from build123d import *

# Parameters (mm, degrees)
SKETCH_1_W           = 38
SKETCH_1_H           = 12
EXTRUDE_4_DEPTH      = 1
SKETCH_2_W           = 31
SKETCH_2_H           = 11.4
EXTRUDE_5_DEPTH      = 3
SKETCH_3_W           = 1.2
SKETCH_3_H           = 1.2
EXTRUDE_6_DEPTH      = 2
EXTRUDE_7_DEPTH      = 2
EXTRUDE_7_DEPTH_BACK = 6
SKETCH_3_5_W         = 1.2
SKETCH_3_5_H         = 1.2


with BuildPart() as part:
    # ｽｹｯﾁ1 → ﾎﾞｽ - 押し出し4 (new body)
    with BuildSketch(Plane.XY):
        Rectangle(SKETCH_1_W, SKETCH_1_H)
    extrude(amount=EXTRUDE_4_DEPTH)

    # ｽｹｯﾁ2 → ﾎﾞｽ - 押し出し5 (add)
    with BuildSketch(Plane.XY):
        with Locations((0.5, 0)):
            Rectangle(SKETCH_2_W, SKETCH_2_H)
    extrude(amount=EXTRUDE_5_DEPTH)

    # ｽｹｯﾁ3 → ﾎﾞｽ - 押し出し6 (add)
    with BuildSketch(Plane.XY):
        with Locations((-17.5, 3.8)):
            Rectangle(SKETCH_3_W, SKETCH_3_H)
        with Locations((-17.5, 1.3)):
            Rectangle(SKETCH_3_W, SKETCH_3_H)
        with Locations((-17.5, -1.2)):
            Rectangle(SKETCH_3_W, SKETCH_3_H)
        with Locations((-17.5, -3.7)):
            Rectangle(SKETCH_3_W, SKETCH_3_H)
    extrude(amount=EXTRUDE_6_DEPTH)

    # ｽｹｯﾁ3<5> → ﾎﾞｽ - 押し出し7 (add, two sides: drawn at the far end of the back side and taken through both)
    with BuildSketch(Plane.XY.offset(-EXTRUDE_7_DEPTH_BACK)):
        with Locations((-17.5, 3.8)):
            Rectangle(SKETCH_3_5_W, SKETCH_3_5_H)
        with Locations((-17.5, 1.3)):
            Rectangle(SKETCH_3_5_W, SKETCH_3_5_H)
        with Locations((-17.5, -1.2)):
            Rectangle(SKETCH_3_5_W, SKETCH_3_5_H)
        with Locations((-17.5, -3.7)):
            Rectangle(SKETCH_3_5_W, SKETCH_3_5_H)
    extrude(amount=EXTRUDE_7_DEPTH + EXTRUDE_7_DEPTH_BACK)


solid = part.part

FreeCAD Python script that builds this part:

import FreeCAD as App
import Part
import Sketcher

doc = App.newDocument("Part")
params = doc.addObject("Spreadsheet::Sheet", "Params")
for row, (alias, value) in enumerate([
    ("sketch1_width", "38 mm"),
    ("sketch1_height", "12 mm"),
    ("pad1_length", "1 mm"),
    ("sketch2_width", "31 mm"),
    ("sketch2_height", "11.4 mm"),
    ("pad2_length", "3 mm"),
    ("sketch3_width", "1.2 mm"),
    ("pad3_length", "2 mm"),
    ("sketch4_width", "1.2 mm"),
    ("pad4_length", "2 mm"),
    ("pad4_length2", "6 mm"),
], start=1):
    params.set(f"A{row}", alias)
    params.set(f"B{row}", "=" + value)
    params.setAlias(f"B{row}", alias)

body = doc.addObject("PartDesign::Body", "Body")

# Sketch on XY plane
sketch1 = body.newObject("Sketcher::SketchObject", "Sketch")
sketch1.AttachmentSupport = (doc.getObject("XY_Plane"), [""])
sketch1.MapMode = "FlatFace"
sketch1.addGeometry(Part.LineSegment(App.Vector(-19, 6, 0), App.Vector(-19, -6, 0)), False)
sketch1.addGeometry(Part.LineSegment(App.Vector(-19, -6, 0), App.Vector(19, -6, 0)), False)
sketch1.addGeometry(Part.LineSegment(App.Vector(19, -6, 0), App.Vector(19, 6, 0)), False)
sketch1.addGeometry(Part.LineSegment(App.Vector(19, 6, 0), App.Vector(-19, 6, 0)), False)
sketch1.addConstraint(Sketcher.Constraint("Coincident", 0, 2, 1, 1))
sketch1.addConstraint(Sketcher.Constraint("Coincident", 1, 2, 2, 1))
sketch1.addConstraint(Sketcher.Constraint("Coincident", 2, 2, 3, 1))
sketch1.addConstraint(Sketcher.Constraint("Coincident", 3, 2, 0, 1))
sketch1.addConstraint(Sketcher.Constraint("Vertical", 0))
sketch1.addConstraint(Sketcher.Constraint("Horizontal", 1))
sketch1.addConstraint(Sketcher.Constraint("Vertical", 2))
sketch1.addConstraint(Sketcher.Constraint("Horizontal", 3))
sketch1.addConstraint(Sketcher.Constraint("Symmetric", 0, 2, 2, 2, -1, 1))
sketch1.addConstraint(Sketcher.Constraint("DistanceX", 1, 1, 1, 2, 38.0))
sketch1.addConstraint(Sketcher.Constraint("DistanceY", 0, 2, 0, 1, 12.0))
sketch1.setExpression("Constraints[9]", "Params.sketch1_width")
sketch1.setExpression("Constraints[10]", "Params.sketch1_height")
pad1 = body.newObject("PartDesign::Pad", "Pad")
pad1.Profile = sketch1
pad1.setExpression("Length", "Params.pad1_length")

# Sketch on XY plane
sketch2 = body.newObject("Sketcher::SketchObject", "Sketch001")
sketch2.AttachmentSupport = (doc.getObject("XY_Plane"), [""])
sketch2.MapMode = "FlatFace"
sketch2.addGeometry(Part.LineSegment(App.Vector(-15, 6, 0), App.Vector(-15, -6, 0)), False)
sketch2.addGeometry(Part.LineSegment(App.Vector(-15, -6, 0), App.Vector(16, -6, 0)), False)
sketch2.addGeometry(Part.LineSegment(App.Vector(16, -6, 0), App.Vector(16, 6, 0)), False)
sketch2.addGeometry(Part.LineSegment(App.Vector(16, 6, 0), App.Vector(-15, 6, 0)), False)
sketch2.addConstraint(Sketcher.Constraint("Coincident", 0, 2, 1, 1))
sketch2.addConstraint(Sketcher.Constraint("Coincident", 1, 2, 2, 1))
sketch2.addConstraint(Sketcher.Constraint("Coincident", 2, 2, 3, 1))
sketch2.addConstraint(Sketcher.Constraint("Coincident", 3, 2, 0, 1))
sketch2.addConstraint(Sketcher.Constraint("Vertical", 0))
sketch2.addConstraint(Sketcher.Constraint("Horizontal", 1))
sketch2.addConstraint(Sketcher.Constraint("Vertical", 2))
sketch2.addConstraint(Sketcher.Constraint("Horizontal", 3))
sketch2.addConstraint(Sketcher.Constraint("DistanceX", 1, 1, 1, 2, 31.0))
sketch2.addConstraint(Sketcher.Constraint("DistanceY", 0, 2, 0, 1, 11.4))
sketch2.addConstraint(Sketcher.Constraint("DistanceX", 0, 2, -1, 1, 15.0))
sketch2.addConstraint(Sketcher.Constraint("DistanceY", 0, 2, -1, 1, 5.7))
sketch2.setExpression("Constraints[8]", "Params.sketch2_width")
sketch2.setExpression("Constraints[9]", "Params.sketch2_height")
pad2 = body.newObject("PartDesign::Pad", "Pad001")
pad2.Profile = sketch2
pad2.setExpression("Length", "Params.pad2_length")

# Sketch on XY plane
sketch3 = body.newObject("Sketcher::SketchObject", "Sketch002")
sketch3.AttachmentSupport = (doc.getObject("XY_Plane"), [""])
sketch3.MapMode = "FlatFace"
sketch3.addGeometry(Part.LineSegment(App.Vector(-18.1, 4.4, 0), App.Vector(-18.1, 3.2, 0)), False)
sketch3.addGeometry(Part.LineSegment(App.Vector(-18.1, 3.2, 0), App.Vector(-16.9, 3.2, 0)), False)
sketch3.addGeometry(Part.LineSegment(App.Vector(-16.9, 3.2, 0), App.Vector(-16.9, 4.4, 0)), False)
sketch3.addGeometry(Part.LineSegment(App.Vector(-16.9, 4.4, 0), App.Vector(-18.1, 4.4, 0)), False)
sketch3.addGeometry(Part.LineSegment(App.Vector(-18.1, 1.9, 0), App.Vector(-18.1, 0.7, 0)), False)
sketch3.addGeometry(Part.LineSegment(App.Vector(-18.1, 0.7, 0), App.Vector(-16.9, 0.7, 0)), False)
sketch3.addGeometry(Part.LineSegment(App.Vector(-16.9, 0.7, 0), App.Vector(-16.9, 1.9, 0)), False)
sketch3.addGeometry(Part.LineSegment(App.Vector(-16.9, 1.9, 0), App.Vector(-18.1, 1.9, 0)), False)
sketch3.addGeometry(Part.LineSegment(App.Vector(-18.1, -0.6, 0), App.Vector(-18.1, -1.8, 0)), False)
sketch3.addGeometry(Part.LineSegment(App.Vector(-18.1, -1.8, 0), App.Vector(-16.9, -1.8, 0)), False)
sketch3.addGeometry(Part.LineSegment(App.Vector(-16.9, -1.8, 0), App.Vector(-16.9, -0.6, 0)), False)
sketch3.addGeometry(Part.LineSegment(App.Vector(-16.9, -0.6, 0), App.Vector(-18.1, -0.6, 0)), False)
sketch3.addGeometry(Part.LineSegment(App.Vector(-18.1, -3.1, 0), App.Vector(-18.1, -4.3, 0)), False)
sketch3.addGeometry(Part.LineSegment(App.Vector(-18.1, -4.3, 0), App.Vector(-16.9, -4.3, 0)), False)
sketch3.addGeometry(Part.LineSegment(App.Vector(-16.9, -4.3, 0), App.Vector(-16.9, -3.1, 0)), False)
sketch3.addGeometry(Part.LineSegment(App.Vector(-16.9, -3.1, 0), App.Vector(-18.1, -3.1, 0)), False)
sketch3.addConstraint(Sketcher.Constraint("Coincident", 0, 2, 1, 1))
sketch3.addConstraint(Sketcher.Constraint("Coincident", 1, 2, 2, 1))
sketch3.addConstraint(Sketcher.Constraint("Coincident", 2, 2, 3, 1))
sketch3.addConstraint(Sketcher.Constraint("Coincident", 3, 2, 0, 1))
sketch3.addConstraint(Sketcher.Constraint("Coincident", 4, 2, 5, 1))
sketch3.addConstraint(Sketcher.Constraint("Coincident", 5, 2, 6, 1))
sketch3.addConstraint(Sketcher.Constraint("Coincident", 6, 2, 7, 1))
sketch3.addConstraint(Sketcher.Constraint("Coincident", 7, 2, 4, 1))
sketch3.addConstraint(Sketcher.Constraint("Coincident", 8, 2, 9, 1))
sketch3.addConstraint(Sketcher.Constraint("Coincident", 9, 2, 10, 1))
sketch3.addConstraint(Sketcher.Constraint("Coincident", 10, 2, 11, 1))
sketch3.addConstraint(Sketcher.Constraint("Coincident", 11, 2, 8, 1))
sketch3.addConstraint(Sketcher.Constraint("Coincident", 12, 2, 13, 1))
sketch3.addConstraint(Sketcher.Constraint("Coincident", 13, 2, 14, 1))
sketch3.addConstraint(Sketcher.Constraint("Coincident", 14, 2, 15, 1))
sketch3.addConstraint(Sketcher.Constraint("Coincident", 15, 2, 12, 1))
sketch3.addConstraint(Sketcher.Constraint("Vertical", 0))
sketch3.addConstraint(Sketcher.Constraint("Horizontal", 1))
sketch3.addConstraint(Sketcher.Constraint("Vertical", 2))
sketch3.addConstraint(Sketcher.Constraint("Horizontal", 3))
sketch3.addConstraint(Sketcher.Constraint("Vertical", 4))
sketch3.addConstraint(Sketcher.Constraint("Horizontal", 5))
sketch3.addConstraint(Sketcher.Constraint("Vertical", 6))
sketch3.addConstraint(Sketcher.Constraint("Horizontal", 7))
sketch3.addConstraint(Sketcher.Constraint("Vertical", 8))
sketch3.addConstraint(Sketcher.Constraint("Horizontal", 9))
sketch3.addConstraint(Sketcher.Constraint("Vertical", 10))
sketch3.addConstraint(Sketcher.Constraint("Horizontal", 11))
sketch3.addConstraint(Sketcher.Constraint("Vertical", 12))
sketch3.addConstraint(Sketcher.Constraint("Horizontal", 13))
sketch3.addConstraint(Sketcher.Constraint("Vertical", 14))
sketch3.addConstraint(Sketcher.Constraint("Horizontal", 15))
sketch3.addConstraint(Sketcher.Constraint("Vertical", 3, 2, 4, 2))
sketch3.addConstraint(Sketcher.Constraint("Vertical", 2, 2, 5, 2))
sketch3.addConstraint(Sketcher.Constraint("Vertical", 7, 2, 8, 2))
sketch3.addConstraint(Sketcher.Constraint("Vertical", 6, 2, 9, 2))
sketch3.addConstraint(Sketcher.Constraint("Vertical", 11, 2, 12, 2))
sketch3.addConstraint(Sketcher.Constraint("Vertical", 10, 2, 13, 2))
sketch3.addConstraint(Sketcher.Constraint("Equal", 15, 0))
sketch3.addConstraint(Sketcher.Constraint("Equal", 2, 4))
sketch3.addConstraint(Sketcher.Constraint("Equal", 6, 8))
sketch3.addConstraint(Sketcher.Constraint("Equal", 10, 12))
sketch3.addConstraint(Sketcher.Constraint("DistanceX", 1, 1, 1, 2, 1.2))
sketch3.addConstraint(Sketcher.Constraint("DistanceY", 8, 2, 0, 2, 5.0))
sketch3.addConstraint(Sketcher.Constraint("DistanceY", 12, 2, 4, 2, 5.0))
sketch3.addConstraint(Sketcher.Constraint("DistanceX", 0, 2, -1, 1, 18.1))
sketch3.addConstraint(Sketcher.Constraint("DistanceY", -1, 1, 0, 2, 3.2))
sketch3.addConstraint(Sketcher.Constraint("DistanceY", -1, 1, 4, 2, 0.7))
sketch3.setExpression("Constraints[42]", "Params.sketch3_width")
pad3 = body.newObject("PartDesign::Pad", "Pad002")
pad3.Profile = sketch3
pad3.setExpression("Length", "Params.pad3_length")

# Sketch on XY plane
sketch4 = body.newObject("Sketcher::SketchObject", "Sketch003")
sketch4.AttachmentSupport = (doc.getObject("XY_Plane"), [""])
sketch4.MapMode = "FlatFace"
sketch4.addGeometry(Part.LineSegment(App.Vector(-18.1, 4.4, 0), App.Vector(-18.1, 3.2, 0)), False)
sketch4.addGeometry(Part.LineSegment(App.Vector(-18.1, 3.2, 0), App.Vector(-16.9, 3.2, 0)), False)
sketch4.addGeometry(Part.LineSegment(App.Vector(-16.9, 3.2, 0), App.Vector(-16.9, 4.4, 0)), False)
sketch4.addGeometry(Part.LineSegment(App.Vector(-16.9, 4.4, 0), App.Vector(-18.1, 4.4, 0)), False)
sketch4.addGeometry(Part.LineSegment(App.Vector(-18.1, 1.9, 0), App.Vector(-18.1, 0.7, 0)), False)
sketch4.addGeometry(Part.LineSegment(App.Vector(-18.1, 0.7, 0), App.Vector(-16.9, 0.7, 0)), False)
sketch4.addGeometry(Part.LineSegment(App.Vector(-16.9, 0.7, 0), App.Vector(-16.9, 1.9, 0)), False)
sketch4.addGeometry(Part.LineSegment(App.Vector(-16.9, 1.9, 0), App.Vector(-18.1, 1.9, 0)), False)
sketch4.addGeometry(Part.LineSegment(App.Vector(-18.1, -0.6, 0), App.Vector(-18.1, -1.8, 0)), False)
sketch4.addGeometry(Part.LineSegment(App.Vector(-18.1, -1.8, 0), App.Vector(-16.9, -1.8, 0)), False)
sketch4.addGeometry(Part.LineSegment(App.Vector(-16.9, -1.8, 0), App.Vector(-16.9, -0.6, 0)), False)
sketch4.addGeometry(Part.LineSegment(App.Vector(-16.9, -0.6, 0), App.Vector(-18.1, -0.6, 0)), False)
sketch4.addGeometry(Part.LineSegment(App.Vector(-18.1, -3.1, 0), App.Vector(-18.1, -4.3, 0)), False)
sketch4.addGeometry(Part.LineSegment(App.Vector(-18.1, -4.3, 0), App.Vector(-16.9, -4.3, 0)), False)
sketch4.addGeometry(Part.LineSegment(App.Vector(-16.9, -4.3, 0), App.Vector(-16.9, -3.1, 0)), False)
sketch4.addGeometry(Part.LineSegment(App.Vector(-16.9, -3.1, 0), App.Vector(-18.1, -3.1, 0)), False)
sketch4.addConstraint(Sketcher.Constraint("Coincident", 0, 2, 1, 1))
sketch4.addConstraint(Sketcher.Constraint("Coincident", 1, 2, 2, 1))
sketch4.addConstraint(Sketcher.Constraint("Coincident", 2, 2, 3, 1))
sketch4.addConstraint(Sketcher.Constraint("Coincident", 3, 2, 0, 1))
sketch4.addConstraint(Sketcher.Constraint("Coincident", 4, 2, 5, 1))
sketch4.addConstraint(Sketcher.Constraint("Coincident", 5, 2, 6, 1))
sketch4.addConstraint(Sketcher.Constraint("Coincident", 6, 2, 7, 1))
sketch4.addConstraint(Sketcher.Constraint("Coincident", 7, 2, 4, 1))
sketch4.addConstraint(Sketcher.Constraint("Coincident", 8, 2, 9, 1))
sketch4.addConstraint(Sketcher.Constraint("Coincident", 9, 2, 10, 1))
sketch4.addConstraint(Sketcher.Constraint("Coincident", 10, 2, 11, 1))
sketch4.addConstraint(Sketcher.Constraint("Coincident", 11, 2, 8, 1))
sketch4.addConstraint(Sketcher.Constraint("Coincident", 12, 2, 13, 1))
sketch4.addConstraint(Sketcher.Constraint("Coincident", 13, 2, 14, 1))
sketch4.addConstraint(Sketcher.Constraint("Coincident", 14, 2, 15, 1))
sketch4.addConstraint(Sketcher.Constraint("Coincident", 15, 2, 12, 1))
sketch4.addConstraint(Sketcher.Constraint("Vertical", 0))
sketch4.addConstraint(Sketcher.Constraint("Horizontal", 1))
sketch4.addConstraint(Sketcher.Constraint("Vertical", 2))
sketch4.addConstraint(Sketcher.Constraint("Horizontal", 3))
sketch4.addConstraint(Sketcher.Constraint("Vertical", 4))
sketch4.addConstraint(Sketcher.Constraint("Horizontal", 5))
sketch4.addConstraint(Sketcher.Constraint("Vertical", 6))
sketch4.addConstraint(Sketcher.Constraint("Horizontal", 7))
sketch4.addConstraint(Sketcher.Constraint("Vertical", 8))
sketch4.addConstraint(Sketcher.Constraint("Horizontal", 9))
sketch4.addConstraint(Sketcher.Constraint("Vertical", 10))
sketch4.addConstraint(Sketcher.Constraint("Horizontal", 11))
sketch4.addConstraint(Sketcher.Constraint("Vertical", 12))
sketch4.addConstraint(Sketcher.Constraint("Horizontal", 13))
sketch4.addConstraint(Sketcher.Constraint("Vertical", 14))
sketch4.addConstraint(Sketcher.Constraint("Horizontal", 15))
sketch4.addConstraint(Sketcher.Constraint("Vertical", 3, 2, 4, 2))
sketch4.addConstraint(Sketcher.Constraint("Vertical", 2, 2, 5, 2))
sketch4.addConstraint(Sketcher.Constraint("Vertical", 7, 2, 8, 2))
sketch4.addConstraint(Sketcher.Constraint("Vertical", 6, 2, 9, 2))
sketch4.addConstraint(Sketcher.Constraint("Vertical", 11, 2, 12, 2))
sketch4.addConstraint(Sketcher.Constraint("Vertical", 10, 2, 13, 2))
sketch4.addConstraint(Sketcher.Constraint("Equal", 15, 0))
sketch4.addConstraint(Sketcher.Constraint("Equal", 2, 4))
sketch4.addConstraint(Sketcher.Constraint("Equal", 6, 8))
sketch4.addConstraint(Sketcher.Constraint("Equal", 10, 12))
sketch4.addConstraint(Sketcher.Constraint("DistanceX", 1, 1, 1, 2, 1.2))
sketch4.addConstraint(Sketcher.Constraint("DistanceY", 8, 2, 0, 2, 5.0))
sketch4.addConstraint(Sketcher.Constraint("DistanceY", 12, 2, 4, 2, 5.0))
sketch4.addConstraint(Sketcher.Constraint("DistanceX", 0, 2, -1, 1, 18.1))
sketch4.addConstraint(Sketcher.Constraint("DistanceY", -1, 1, 0, 2, 3.2))
sketch4.addConstraint(Sketcher.Constraint("DistanceY", -1, 1, 4, 2, 0.7))
sketch4.setExpression("Constraints[42]", "Params.sketch4_width")
pad4 = body.newObject("PartDesign::Pad", "Pad003")
pad4.Profile = sketch4
pad4.Type = "TwoLengths"
pad4.setExpression("Length", "Params.pad4_length")
pad4.setExpression("Length2", "Params.pad4_length2")

doc.recompute()
